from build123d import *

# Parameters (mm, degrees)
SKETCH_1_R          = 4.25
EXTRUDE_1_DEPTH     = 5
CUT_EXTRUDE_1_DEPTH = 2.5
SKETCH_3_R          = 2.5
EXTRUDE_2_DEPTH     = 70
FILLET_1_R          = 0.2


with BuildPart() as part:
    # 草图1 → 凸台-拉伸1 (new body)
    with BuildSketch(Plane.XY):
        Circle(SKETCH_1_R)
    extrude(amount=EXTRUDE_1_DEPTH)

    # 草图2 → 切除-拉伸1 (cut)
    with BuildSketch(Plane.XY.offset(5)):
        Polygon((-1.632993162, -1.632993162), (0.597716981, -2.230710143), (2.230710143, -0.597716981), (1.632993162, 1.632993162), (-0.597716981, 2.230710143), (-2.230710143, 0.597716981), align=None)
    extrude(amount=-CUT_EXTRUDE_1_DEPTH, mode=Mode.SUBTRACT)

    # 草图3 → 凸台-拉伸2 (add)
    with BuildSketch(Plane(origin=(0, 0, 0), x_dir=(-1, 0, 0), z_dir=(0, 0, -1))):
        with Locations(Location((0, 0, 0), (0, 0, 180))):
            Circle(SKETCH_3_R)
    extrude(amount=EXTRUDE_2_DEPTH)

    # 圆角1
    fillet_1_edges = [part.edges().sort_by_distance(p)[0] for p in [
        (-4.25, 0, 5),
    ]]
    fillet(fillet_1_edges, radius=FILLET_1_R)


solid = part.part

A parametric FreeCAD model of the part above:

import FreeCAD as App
import Part
import Sketcher

V = App.Vector
Q = App.Units.Quantity


def edges_at(feature, points):
    """Names of the edges that pass closest to the given points."""
    edges = feature.Shape.Edges
    near = lambda p: min(range(len(edges)), key=lambda i: edges[i].distToShape(Part.Vertex(*p))[0])
    return sorted({f"Edge{near(p) + 1}" for p in points})


def add_polygon(sketch, points):
    """Adds a closed chain of lines whose ends are joined by coincident constraints."""
    first, n = sketch.GeometryCount, len(points)
    for a, b in zip(points, points[1:] + points[:1]):
        sketch.addGeometry(Part.LineSegment(App.Vector(*a, 0), App.Vector(*b, 0)), False)
    for i in range(n):
        sketch.addConstraint(Sketcher.Constraint("Coincident", first + i, 2, first + (i + 1) % n, 1))

doc = App.newDocument("Part")
body = doc.addObject("PartDesign::Body", "Body")

sketch1 = doc.addObject("Sketcher::SketchObject", "Sketch")
body.addObject(sketch1)
sketch1.AttachmentSupport = (doc.XY_Plane, [""])
sketch1.MapMode = "FlatFace"
sketch1.addGeometry(Part.Circle(V(0, 0, 0), V(0, 0, 1), 4.2), False)
sketch1.addConstraint(Sketcher.Constraint("Coincident", 0, 3, -1, 1))
sketch1.addConstraint(Sketcher.Constraint("Diameter", 0, 8.5))
pad1 = doc.addObject("PartDesign::Pad", "Pad")
body.addObject(pad1)
pad1.Profile = sketch1
pad1.Length = 5

sketch2 = doc.addObject("Sketcher::SketchObject", "Sketch001")
body.addObject(sketch2)
sketch2.AttachmentSupport = (doc.XY_Plane, [""])
sketch2.MapMode = "FlatFace"
sketch2.AttachmentOffset = App.Placement(V(0, 0, 5), App.Rotation())
add_polygon(sketch2, [(-1.6, -1.6), (0.6, -2.2), (2.2, -0.6), (1.6, 1.6), (-0.6, 2.2), (-2.2, 0.6)])
sketch2.addConstraint(Sketcher.Constraint("Symmetric", 0, 2, 3, 2, -1, 1))
sketch2.addConstraint(Sketcher.Constraint("Symmetric", 1, 2, 4, 2, -1, 1))
sketch2.addConstraint(Sketcher.Constraint("Symmetric", 2, 2, 5, 2, -1, 1))
sketch2.addConstraint(Sketcher.Constraint("Equal", 0, 1))
sketch2.addConstraint(Sketcher.Constraint("Equal", 1, 2))
sketch2.addConstraint(Sketcher.Constraint("Angle", 0, Q("-15 deg")))
sketch2.addConstraint(Sketcher.Constraint("Angle", 1, Q("45 deg")))
sketch2.addConstraint(Sketcher.Constraint("Angle", 2, Q("105 deg")))
sketch2.addConstraint(Sketcher.Constraint("Distance", 0, 2.309401))
pocket1 = doc.addObject("PartDesign::Pocket", "Pocket")
body.addObject(pocket1)
pocket1.Profile = sketch2
pocket1.Length = 2.5

sketch3 = doc.addObject("Sketcher::SketchObject", "Sketch002")
body.addObject(sketch3)
sketch3.AttachmentSupport = (doc.XY_Plane, [""])
sketch3.MapMode = "FlatFace"
sketch3.addGeometry(Part.Circle(V(0, 0, 0), V(0, 0, 1), 2.5), False)
sketch3.addConstraint(Sketcher.Constraint("Coincident", 0, 3, -1, 1))
sketch3.addConstraint(Sketcher.Constraint("Diameter", 0, 5.0))
pad2 = doc.addObject("PartDesign::Pad", "Pad001")
body.addObject(pad2)
pad2.Profile = sketch3
pad2.Length = 70
pad2.Reversed = True
doc.recompute()

fillet = doc.addObject("PartDesign::Fillet", "Fillet")
body.addObject(fillet)
fillet.Base = (pad2, edges_at(pad2, [(-4.25, 0, 5)]))
fillet.Radius = 0.2

doc.recompute()
